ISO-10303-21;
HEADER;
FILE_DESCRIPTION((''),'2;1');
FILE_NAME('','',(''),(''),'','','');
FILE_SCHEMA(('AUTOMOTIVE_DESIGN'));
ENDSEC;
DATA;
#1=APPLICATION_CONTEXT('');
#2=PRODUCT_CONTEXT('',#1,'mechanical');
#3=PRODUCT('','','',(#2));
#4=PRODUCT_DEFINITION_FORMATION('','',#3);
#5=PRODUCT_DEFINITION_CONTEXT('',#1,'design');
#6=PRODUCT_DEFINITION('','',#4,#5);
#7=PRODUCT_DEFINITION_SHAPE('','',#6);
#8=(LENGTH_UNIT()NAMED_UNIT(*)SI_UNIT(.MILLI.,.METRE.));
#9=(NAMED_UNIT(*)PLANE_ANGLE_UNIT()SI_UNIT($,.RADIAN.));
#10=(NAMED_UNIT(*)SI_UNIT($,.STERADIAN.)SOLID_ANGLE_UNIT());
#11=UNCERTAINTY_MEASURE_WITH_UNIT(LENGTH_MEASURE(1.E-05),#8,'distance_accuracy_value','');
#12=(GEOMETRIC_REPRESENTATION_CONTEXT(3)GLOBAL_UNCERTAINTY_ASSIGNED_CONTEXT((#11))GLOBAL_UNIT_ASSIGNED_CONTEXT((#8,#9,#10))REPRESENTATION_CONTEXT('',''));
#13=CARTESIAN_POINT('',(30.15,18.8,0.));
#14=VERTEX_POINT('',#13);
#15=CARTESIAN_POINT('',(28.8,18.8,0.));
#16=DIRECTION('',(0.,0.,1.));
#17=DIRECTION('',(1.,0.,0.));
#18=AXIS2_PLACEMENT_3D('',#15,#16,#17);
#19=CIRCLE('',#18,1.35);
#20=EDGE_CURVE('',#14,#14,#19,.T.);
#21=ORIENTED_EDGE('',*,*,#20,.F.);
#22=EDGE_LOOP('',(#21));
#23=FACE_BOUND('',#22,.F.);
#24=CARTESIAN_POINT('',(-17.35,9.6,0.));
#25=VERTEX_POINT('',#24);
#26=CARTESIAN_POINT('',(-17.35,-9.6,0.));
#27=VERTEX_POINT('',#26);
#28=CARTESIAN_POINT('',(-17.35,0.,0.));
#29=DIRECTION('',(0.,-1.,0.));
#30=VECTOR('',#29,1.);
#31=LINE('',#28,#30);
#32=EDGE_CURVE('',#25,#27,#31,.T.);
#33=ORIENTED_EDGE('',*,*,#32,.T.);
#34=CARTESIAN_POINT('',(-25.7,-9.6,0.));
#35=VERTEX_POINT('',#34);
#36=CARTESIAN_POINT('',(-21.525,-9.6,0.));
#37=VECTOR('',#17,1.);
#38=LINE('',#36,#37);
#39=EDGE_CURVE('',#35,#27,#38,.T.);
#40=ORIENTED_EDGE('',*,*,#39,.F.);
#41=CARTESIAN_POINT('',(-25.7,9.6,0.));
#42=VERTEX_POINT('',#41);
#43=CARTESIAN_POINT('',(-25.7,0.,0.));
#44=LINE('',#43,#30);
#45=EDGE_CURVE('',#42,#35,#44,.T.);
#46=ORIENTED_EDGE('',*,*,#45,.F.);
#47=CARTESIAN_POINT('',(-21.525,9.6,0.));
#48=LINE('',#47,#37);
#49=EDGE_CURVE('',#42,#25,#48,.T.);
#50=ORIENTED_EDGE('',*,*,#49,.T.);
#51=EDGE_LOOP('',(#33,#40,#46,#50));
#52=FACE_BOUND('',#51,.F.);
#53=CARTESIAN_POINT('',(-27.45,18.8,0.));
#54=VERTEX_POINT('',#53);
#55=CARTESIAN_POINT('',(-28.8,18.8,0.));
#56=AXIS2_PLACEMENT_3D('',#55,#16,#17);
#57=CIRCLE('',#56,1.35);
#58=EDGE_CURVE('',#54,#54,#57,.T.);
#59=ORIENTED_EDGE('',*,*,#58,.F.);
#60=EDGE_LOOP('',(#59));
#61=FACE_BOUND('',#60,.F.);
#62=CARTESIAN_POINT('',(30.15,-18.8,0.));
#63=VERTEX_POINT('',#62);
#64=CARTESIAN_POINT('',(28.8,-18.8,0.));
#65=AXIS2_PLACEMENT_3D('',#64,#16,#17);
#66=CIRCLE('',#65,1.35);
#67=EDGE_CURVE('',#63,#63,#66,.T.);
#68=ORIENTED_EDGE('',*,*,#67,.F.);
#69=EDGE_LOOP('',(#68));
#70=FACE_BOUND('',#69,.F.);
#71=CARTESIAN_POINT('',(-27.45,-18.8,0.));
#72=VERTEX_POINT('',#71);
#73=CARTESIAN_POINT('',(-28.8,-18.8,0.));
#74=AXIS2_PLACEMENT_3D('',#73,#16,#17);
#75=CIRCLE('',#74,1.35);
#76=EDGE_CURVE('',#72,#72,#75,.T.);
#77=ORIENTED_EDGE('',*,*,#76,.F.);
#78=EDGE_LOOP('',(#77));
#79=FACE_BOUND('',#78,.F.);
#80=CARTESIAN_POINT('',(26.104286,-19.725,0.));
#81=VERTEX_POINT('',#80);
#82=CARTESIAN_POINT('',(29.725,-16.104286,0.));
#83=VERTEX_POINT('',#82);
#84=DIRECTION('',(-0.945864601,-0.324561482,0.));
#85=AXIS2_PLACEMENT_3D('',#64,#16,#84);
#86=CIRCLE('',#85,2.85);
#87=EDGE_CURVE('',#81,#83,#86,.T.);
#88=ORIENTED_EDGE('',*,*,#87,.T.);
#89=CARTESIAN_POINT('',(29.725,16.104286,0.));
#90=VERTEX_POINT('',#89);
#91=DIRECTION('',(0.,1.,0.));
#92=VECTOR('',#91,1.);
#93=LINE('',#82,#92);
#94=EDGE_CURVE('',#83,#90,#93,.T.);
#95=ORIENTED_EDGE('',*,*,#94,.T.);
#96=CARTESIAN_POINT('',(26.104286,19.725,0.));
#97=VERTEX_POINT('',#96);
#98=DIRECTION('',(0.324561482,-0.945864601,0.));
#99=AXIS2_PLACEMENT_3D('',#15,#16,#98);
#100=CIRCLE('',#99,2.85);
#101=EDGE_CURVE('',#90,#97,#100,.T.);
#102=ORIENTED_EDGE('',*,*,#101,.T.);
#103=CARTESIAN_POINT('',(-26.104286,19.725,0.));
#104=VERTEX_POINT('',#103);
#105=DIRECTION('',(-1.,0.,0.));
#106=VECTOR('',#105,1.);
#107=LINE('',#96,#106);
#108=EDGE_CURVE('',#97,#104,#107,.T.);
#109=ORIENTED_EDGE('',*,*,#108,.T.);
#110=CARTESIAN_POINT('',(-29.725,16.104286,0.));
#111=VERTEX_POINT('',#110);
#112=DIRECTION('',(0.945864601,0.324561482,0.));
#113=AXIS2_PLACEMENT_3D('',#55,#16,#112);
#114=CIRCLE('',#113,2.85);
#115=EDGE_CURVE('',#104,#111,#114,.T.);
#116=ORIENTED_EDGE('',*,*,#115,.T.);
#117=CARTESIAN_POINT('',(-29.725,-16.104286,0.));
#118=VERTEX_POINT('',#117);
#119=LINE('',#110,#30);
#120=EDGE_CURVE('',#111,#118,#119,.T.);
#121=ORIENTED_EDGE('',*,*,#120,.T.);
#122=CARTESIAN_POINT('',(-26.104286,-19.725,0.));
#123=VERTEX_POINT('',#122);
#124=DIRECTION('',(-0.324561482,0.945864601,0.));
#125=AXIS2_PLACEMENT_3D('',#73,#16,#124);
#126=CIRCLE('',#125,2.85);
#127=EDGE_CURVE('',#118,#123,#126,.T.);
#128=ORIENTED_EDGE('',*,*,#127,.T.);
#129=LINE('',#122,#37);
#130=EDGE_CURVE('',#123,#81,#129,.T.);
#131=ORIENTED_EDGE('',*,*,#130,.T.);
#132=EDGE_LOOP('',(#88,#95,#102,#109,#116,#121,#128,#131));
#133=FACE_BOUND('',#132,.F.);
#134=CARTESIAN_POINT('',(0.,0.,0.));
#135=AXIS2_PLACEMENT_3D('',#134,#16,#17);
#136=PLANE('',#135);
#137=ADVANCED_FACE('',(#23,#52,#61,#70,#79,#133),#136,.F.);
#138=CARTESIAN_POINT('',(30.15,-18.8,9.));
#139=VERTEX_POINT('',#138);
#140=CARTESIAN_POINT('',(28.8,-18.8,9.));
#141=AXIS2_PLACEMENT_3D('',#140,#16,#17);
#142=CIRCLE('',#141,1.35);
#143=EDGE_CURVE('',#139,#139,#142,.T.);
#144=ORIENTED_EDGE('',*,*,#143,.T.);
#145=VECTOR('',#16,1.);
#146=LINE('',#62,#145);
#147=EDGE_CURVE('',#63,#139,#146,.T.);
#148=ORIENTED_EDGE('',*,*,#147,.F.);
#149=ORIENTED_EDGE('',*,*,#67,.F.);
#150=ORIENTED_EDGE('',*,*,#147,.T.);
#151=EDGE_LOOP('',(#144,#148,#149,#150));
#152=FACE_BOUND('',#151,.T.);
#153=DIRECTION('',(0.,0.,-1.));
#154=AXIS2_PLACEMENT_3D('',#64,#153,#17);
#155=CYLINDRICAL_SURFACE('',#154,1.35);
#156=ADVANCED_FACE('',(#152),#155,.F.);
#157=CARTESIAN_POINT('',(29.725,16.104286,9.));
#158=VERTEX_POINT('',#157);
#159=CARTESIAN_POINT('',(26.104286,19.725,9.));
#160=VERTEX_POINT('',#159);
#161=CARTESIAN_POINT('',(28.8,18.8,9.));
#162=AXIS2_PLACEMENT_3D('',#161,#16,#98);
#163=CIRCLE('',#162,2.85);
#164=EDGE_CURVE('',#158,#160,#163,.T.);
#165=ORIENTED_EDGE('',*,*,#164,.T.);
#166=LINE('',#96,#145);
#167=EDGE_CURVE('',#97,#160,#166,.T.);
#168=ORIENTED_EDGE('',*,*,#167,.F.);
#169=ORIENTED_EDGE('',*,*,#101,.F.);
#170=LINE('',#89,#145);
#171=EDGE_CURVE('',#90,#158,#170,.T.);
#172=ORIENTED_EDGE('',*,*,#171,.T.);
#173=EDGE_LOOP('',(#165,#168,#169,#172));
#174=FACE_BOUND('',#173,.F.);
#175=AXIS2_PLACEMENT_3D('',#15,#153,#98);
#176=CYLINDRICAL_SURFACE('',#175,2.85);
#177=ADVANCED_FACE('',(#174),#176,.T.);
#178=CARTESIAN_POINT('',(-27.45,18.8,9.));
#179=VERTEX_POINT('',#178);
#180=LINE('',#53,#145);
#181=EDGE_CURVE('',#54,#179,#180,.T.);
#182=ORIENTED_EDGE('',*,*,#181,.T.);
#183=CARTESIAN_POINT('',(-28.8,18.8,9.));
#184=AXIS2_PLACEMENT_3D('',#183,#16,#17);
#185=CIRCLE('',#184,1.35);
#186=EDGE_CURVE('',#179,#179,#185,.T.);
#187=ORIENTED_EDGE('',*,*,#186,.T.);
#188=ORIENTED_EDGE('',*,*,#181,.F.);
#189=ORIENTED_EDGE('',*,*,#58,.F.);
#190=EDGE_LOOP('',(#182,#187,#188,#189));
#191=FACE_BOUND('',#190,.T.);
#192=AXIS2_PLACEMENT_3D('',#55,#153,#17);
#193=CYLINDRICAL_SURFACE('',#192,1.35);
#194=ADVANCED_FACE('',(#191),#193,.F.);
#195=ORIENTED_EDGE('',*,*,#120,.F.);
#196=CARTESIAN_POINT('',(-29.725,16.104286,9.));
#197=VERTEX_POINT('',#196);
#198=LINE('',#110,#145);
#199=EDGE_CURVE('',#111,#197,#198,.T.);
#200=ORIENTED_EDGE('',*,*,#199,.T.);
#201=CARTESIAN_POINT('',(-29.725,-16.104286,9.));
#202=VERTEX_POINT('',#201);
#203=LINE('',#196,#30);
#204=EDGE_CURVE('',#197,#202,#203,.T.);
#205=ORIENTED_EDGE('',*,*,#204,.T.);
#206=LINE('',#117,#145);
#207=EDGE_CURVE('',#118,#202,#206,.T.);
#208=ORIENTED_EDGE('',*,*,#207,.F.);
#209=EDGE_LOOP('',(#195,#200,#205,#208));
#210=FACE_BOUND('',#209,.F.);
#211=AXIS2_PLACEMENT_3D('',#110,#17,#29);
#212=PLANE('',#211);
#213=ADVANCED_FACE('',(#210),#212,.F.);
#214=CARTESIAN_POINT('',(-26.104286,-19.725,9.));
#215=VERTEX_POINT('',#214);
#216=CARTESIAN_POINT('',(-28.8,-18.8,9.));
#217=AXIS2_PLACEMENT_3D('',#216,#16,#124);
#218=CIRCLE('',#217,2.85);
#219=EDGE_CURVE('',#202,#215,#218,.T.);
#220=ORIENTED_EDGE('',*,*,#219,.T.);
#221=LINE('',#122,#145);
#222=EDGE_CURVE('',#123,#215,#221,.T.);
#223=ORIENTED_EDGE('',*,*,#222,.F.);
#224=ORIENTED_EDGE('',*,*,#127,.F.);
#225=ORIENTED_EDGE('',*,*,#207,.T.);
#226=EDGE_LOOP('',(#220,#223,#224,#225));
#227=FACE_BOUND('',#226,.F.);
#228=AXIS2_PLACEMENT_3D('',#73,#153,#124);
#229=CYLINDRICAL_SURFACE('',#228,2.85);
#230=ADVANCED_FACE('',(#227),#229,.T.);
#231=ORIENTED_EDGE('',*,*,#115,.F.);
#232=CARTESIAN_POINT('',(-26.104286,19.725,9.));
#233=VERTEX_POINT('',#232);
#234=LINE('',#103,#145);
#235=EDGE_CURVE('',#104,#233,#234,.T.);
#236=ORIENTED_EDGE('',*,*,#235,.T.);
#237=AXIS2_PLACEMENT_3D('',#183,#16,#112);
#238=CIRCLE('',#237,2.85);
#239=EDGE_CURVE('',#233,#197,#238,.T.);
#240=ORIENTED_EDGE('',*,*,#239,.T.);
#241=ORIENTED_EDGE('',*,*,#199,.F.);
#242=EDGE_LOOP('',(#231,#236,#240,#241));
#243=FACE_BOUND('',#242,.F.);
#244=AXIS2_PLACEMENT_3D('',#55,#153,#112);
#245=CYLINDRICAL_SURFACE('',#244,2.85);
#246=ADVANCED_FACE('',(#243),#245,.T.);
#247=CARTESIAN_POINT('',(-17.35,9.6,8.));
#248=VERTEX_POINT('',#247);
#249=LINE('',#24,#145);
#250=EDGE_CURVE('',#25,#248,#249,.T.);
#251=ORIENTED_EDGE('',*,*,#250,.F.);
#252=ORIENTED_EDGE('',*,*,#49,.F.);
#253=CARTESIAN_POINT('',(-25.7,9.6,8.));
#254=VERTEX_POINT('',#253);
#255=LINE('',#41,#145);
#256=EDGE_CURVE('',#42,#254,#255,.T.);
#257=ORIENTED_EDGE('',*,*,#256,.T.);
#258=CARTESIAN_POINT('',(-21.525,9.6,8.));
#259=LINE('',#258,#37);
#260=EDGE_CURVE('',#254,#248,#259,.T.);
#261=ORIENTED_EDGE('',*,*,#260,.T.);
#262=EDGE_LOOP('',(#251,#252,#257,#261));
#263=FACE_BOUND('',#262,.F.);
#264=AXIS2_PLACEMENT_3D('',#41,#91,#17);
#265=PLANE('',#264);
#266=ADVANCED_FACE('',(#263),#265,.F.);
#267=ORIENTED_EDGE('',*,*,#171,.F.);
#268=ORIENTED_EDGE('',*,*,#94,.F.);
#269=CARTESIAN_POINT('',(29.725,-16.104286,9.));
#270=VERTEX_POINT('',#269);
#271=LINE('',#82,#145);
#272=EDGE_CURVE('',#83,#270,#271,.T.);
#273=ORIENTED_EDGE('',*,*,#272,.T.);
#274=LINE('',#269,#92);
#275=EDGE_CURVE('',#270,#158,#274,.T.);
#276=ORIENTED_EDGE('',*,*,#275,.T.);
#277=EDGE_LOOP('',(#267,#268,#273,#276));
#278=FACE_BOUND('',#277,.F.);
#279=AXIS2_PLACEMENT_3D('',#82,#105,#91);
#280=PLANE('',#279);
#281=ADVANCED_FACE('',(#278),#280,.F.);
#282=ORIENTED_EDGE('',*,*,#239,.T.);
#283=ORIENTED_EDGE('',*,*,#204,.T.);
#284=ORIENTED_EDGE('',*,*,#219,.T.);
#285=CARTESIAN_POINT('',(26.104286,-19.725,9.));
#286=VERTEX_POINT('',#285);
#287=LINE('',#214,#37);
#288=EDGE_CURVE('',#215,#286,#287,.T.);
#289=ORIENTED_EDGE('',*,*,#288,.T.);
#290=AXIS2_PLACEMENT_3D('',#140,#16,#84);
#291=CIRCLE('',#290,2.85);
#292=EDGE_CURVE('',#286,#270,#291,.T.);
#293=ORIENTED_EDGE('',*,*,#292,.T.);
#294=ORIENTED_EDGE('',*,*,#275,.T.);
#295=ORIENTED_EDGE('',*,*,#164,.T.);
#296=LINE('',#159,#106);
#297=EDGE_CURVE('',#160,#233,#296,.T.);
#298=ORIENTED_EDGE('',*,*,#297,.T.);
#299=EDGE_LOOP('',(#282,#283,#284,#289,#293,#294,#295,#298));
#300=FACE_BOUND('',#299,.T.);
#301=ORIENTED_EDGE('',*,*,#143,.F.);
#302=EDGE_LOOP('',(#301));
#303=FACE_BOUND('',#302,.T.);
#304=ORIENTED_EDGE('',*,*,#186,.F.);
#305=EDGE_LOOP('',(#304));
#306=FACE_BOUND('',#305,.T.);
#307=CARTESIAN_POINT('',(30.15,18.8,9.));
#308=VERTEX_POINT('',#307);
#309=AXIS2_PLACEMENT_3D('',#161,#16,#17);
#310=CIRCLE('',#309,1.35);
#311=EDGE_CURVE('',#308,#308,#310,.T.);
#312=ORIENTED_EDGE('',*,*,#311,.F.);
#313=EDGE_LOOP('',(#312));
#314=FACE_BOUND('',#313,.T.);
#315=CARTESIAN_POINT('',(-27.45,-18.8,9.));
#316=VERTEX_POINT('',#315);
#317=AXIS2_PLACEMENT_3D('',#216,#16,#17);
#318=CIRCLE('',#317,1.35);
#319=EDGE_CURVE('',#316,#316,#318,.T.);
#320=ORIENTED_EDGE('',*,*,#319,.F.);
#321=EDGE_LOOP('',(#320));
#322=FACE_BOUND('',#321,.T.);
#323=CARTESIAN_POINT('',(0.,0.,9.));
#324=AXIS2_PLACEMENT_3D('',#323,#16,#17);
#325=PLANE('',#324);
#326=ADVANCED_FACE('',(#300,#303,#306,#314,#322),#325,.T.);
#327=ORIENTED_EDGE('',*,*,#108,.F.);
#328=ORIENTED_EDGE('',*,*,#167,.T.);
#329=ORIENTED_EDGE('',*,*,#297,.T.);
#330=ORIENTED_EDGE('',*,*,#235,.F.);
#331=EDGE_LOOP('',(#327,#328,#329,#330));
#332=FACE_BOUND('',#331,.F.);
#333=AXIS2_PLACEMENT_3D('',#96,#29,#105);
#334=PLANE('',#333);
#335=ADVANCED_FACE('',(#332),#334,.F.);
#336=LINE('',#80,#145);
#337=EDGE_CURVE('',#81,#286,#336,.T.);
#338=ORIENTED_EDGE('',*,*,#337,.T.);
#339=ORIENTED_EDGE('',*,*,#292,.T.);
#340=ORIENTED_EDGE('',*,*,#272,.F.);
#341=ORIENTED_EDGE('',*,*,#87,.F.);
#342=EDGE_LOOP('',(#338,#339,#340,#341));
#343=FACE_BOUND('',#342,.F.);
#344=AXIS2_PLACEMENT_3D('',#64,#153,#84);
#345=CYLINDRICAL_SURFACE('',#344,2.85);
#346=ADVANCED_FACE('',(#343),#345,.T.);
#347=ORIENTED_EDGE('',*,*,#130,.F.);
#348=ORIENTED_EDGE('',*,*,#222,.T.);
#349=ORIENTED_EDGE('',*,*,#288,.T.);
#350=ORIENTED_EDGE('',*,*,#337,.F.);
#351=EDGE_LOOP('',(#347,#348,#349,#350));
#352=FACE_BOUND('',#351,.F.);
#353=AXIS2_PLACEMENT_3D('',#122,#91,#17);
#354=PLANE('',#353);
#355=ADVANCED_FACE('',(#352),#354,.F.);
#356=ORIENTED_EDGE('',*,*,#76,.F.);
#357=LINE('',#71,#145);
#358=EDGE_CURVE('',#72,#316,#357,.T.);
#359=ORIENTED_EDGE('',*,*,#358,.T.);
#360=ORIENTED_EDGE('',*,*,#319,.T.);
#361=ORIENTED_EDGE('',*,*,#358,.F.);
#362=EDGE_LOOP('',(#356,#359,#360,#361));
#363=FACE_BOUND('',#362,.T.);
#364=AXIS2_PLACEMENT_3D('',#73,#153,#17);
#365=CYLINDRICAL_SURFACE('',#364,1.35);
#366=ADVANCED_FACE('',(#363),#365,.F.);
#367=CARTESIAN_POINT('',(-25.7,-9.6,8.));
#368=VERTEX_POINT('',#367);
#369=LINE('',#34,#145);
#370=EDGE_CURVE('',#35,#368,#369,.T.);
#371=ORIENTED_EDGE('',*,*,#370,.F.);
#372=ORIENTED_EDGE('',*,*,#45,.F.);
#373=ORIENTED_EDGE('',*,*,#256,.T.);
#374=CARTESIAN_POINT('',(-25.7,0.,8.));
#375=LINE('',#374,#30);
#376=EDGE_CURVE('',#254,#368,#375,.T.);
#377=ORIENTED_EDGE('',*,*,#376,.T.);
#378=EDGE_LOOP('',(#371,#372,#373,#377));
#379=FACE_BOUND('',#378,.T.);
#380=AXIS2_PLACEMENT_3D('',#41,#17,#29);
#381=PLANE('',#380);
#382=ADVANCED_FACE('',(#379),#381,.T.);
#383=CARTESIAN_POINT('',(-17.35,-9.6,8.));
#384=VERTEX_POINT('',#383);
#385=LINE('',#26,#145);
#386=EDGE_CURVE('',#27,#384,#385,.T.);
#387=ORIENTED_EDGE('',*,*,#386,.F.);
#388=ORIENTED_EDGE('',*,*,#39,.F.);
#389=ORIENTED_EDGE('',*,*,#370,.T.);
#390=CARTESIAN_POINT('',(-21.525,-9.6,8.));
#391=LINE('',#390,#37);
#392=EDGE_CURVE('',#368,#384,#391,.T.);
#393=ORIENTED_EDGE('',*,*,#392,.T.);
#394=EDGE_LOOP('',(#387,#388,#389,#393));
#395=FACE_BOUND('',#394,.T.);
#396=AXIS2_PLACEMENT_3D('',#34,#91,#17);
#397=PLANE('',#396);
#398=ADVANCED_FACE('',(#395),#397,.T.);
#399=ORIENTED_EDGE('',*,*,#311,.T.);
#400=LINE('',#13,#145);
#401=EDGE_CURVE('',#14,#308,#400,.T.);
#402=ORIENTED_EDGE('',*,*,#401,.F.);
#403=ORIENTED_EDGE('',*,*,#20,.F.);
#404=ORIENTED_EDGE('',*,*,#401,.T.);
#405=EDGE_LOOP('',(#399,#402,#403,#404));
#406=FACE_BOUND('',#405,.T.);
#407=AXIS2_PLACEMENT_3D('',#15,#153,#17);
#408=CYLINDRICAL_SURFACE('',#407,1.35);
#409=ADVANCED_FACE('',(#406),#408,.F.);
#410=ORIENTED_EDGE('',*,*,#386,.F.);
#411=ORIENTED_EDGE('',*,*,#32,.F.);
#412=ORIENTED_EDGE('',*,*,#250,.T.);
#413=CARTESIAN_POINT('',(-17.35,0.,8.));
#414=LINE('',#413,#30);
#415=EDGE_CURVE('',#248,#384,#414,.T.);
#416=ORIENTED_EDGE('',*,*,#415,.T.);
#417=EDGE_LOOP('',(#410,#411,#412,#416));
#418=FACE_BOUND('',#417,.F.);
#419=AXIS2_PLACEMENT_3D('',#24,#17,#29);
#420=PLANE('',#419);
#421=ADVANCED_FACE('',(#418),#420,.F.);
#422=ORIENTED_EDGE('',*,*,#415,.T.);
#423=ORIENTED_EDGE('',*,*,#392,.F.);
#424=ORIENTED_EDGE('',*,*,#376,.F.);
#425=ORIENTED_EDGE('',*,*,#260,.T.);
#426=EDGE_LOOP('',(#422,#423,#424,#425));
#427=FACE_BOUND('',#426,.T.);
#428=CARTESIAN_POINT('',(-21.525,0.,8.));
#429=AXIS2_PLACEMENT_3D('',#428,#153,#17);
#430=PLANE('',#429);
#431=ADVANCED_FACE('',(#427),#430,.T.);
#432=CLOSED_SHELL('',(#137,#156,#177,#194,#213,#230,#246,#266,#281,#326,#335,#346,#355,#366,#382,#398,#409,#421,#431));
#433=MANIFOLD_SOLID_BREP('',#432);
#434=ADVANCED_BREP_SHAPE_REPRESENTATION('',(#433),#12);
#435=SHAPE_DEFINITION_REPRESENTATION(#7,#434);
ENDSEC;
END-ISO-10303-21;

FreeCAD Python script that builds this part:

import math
import FreeCAD as App
import Part
import Sketcher

V = App.Vector
Q = App.Units.Quantity

doc = App.newDocument("Part")
body = doc.addObject("PartDesign::Body", "Body")

sketch1 = body.newObject("Sketcher::SketchObject", "Sketch")
sketch1.AttachmentSupport = (doc.getObject("XY_Plane"), [""])
sketch1.MapMode = "FlatFace"
sketch1.addGeometry(Part.LineSegment(V(26.1, 19.7, 0), V(-26.1, 19.7, 0)), False)
sketch1.addGeometry(Part.ArcOfCircle(Part.Circle(V(-28.8, 18.8, 0), V(0, 0, 1), 2.8), math.radians(19), math.radians(251)), False)
sketch1.addGeometry(Part.LineSegment(V(-29.7, 16.1, 0), V(-29.7, -16.1, 0)), False)
sketch1.addGeometry(Part.ArcOfCircle(Part.Circle(V(-28.8, -18.8, 0), V(0, 0, 1), 2.8), math.radians(109), math.radians(341)), False)
sketch1.addGeometry(Part.LineSegment(V(-26.1, -19.7, 0), V(26.1, -19.7, 0)), False)
sketch1.addGeometry(Part.ArcOfCircle(Part.Circle(V(28.8, -18.8, 0), V(0, 0, 1), 2.8), math.radians(-161), math.radians(71)), False)
sketch1.addGeometry(Part.LineSegment(V(29.7, -16.1, 0), V(29.7, 16.1, 0)), False)
sketch1.addGeometry(Part.ArcOfCircle(Part.Circle(V(28.8, 18.8, 0), V(0, 0, 1), 2.8), math.radians(-71), math.radians(161)), False)
sketch1.addGeometry(Part.Circle(V(-28.8, -18.8, 0), V(0, 0, 1), 1.4), False)
sketch1.addGeometry(Part.Circle(V(28.8, -18.8, 0), V(0, 0, 1), 1.4), False)
sketch1.addGeometry(Part.Circle(V(-28.8, 18.8, 0), V(0, 0, 1), 1.4), False)
sketch1.addGeometry(Part.Circle(V(28.8, 18.8, 0), V(0, 0, 1), 1.4), False)
sketch1.addConstraint(Sketcher.Constraint("Coincident", 0, 2, 1, 1))
sketch1.addConstraint(Sketcher.Constraint("Coincident", 1, 2, 2, 1))
sketch1.addConstraint(Sketcher.Constraint("Coincident", 2, 2, 3, 1))
sketch1.addConstraint(Sketcher.Constraint("Coincident", 3, 2, 4, 1))
sketch1.addConstraint(Sketcher.Constraint("Coincident", 4, 2, 5, 1))
sketch1.addConstraint(Sketcher.Constraint("Coincident", 5, 2, 6, 1))
sketch1.addConstraint(Sketcher.Constraint("Coincident", 6, 2, 7, 1))
sketch1.addConstraint(Sketcher.Constraint("Coincident", 7, 2, 0, 1))
sketch1.addConstraint(Sketcher.Constraint("Horizontal", 0))
sketch1.addConstraint(Sketcher.Constraint("Vertical", 2))
sketch1.addConstraint(Sketcher.Constraint("Horizontal", 4))
sketch1.addConstraint(Sketcher.Constraint("Vertical", 6))
sketch1.addConstraint(Sketcher.Constraint("Coincident", 8, 3, 3, 3))
sketch1.addConstraint(Sketcher.Constraint("Coincident", 9, 3, 5, 3))
sketch1.addConstraint(Sketcher.Constraint("Coincident", 10, 3, 1, 3))
sketch1.addConstraint(Sketcher.Constraint("Coincident", 11, 3, 7, 3))
sketch1.addConstraint(Sketcher.Constraint("Equal", 1, 3))
sketch1.addConstraint(Sketcher.Constraint("Equal", 3, 5))
sketch1.addConstraint(Sketcher.Constraint("Equal", 5, 7))
sketch1.addConstraint(Sketcher.Constraint("Equal", 8, 9))
sketch1.addConstraint(Sketcher.Constraint("Equal", 9, 10))
sketch1.addConstraint(Sketcher.Constraint("Equal", 10, 11))
sketch1.addConstraint(Sketcher.Constraint("Symmetric", 1, 3, 5, 3, -1, 1))
sketch1.addConstraint(Sketcher.Constraint("Symmetric", 3, 3, 7, 3, -1, 1))
sketch1.addConstraint(Sketcher.Constraint("Symmetric", 3, 3, 5, 3, -2))
sketch1.addConstraint(Sketcher.Constraint("Horizontal", 2, 2, 5, 2))
sketch1.addConstraint(Sketcher.Constraint("Vertical", 0, 2, 3, 2))
sketch1.addConstraint(Sketcher.Constraint("Diameter", 8, Q("2.7 mm")))
sketch1.addConstraint(Sketcher.Constraint("Radius", 1, Q("2.85 mm")))
sketch1.addConstraint(Sketcher.Constraint("DistanceX", 1, 3, -1, 1, Q("28.8 mm")))
sketch1.addConstraint(Sketcher.Constraint("DistanceY", -1, 1, 1, 3, Q("18.8 mm")))
sketch1.addConstraint(Sketcher.Constraint("DistanceY", -1, 1, 0, 2, Q("19.725 mm")))
sketch1.addConstraint(Sketcher.Constraint("DistanceX", 1, 2, -1, 1, Q("29.725 mm")))
pad1 = body.newObject("PartDesign::Pad", "Pad")
pad1.Profile = sketch1
pad1.Length = 9

sketch2 = body.newObject("Sketcher::SketchObject", "Sketch001")
sketch2.AttachmentSupport = (doc.getObject("XY_Plane"), [""])
sketch2.MapMode = "FlatFace"
sketch2.addGeometry(Part.LineSegment(V(-26, -10, 0), V(-26, 10, 0)), False)
sketch2.addGeometry(Part.LineSegment(V(-26, 10, 0), V(-17, 10, 0)), False)
sketch2.addGeometry(Part.LineSegment(V(-17, 10, 0), V(-17, -10, 0)), False)
sketch2.addGeometry(Part.LineSegment(V(-17, -10, 0), V(-26, -10, 0)), False)
sketch2.addConstraint(Sketcher.Constraint("Coincident", 0, 2, 1, 1))
sketch2.addConstraint(Sketcher.Constraint("Coincident", 1, 2, 2, 1))
sketch2.addConstraint(Sketcher.Constraint("Coincident", 2, 2, 3, 1))
sketch2.addConstraint(Sketcher.Constraint("Coincident", 3, 2, 0, 1))
sketch2.addConstraint(Sketcher.Constraint("Vertical", 0))
sketch2.addConstraint(Sketcher.Constraint("Horizontal", 1))
sketch2.addConstraint(Sketcher.Constraint("Vertical", 2))
sketch2.addConstraint(Sketcher.Constraint("Horizontal", 3))
sketch2.addConstraint(Sketcher.Constraint("DistanceY", 0, 1, 0, 2, Q("19.2 mm")))
sketch2.addConstraint(Sketcher.Constraint("DistanceX", 1, 1, 1, 2, Q("8.35 mm")))
sketch2.addConstraint(Sketcher.Constraint("DistanceX", 0, 2, -1, 1, Q("25.7 mm")))
sketch2.addConstraint(Sketcher.Constraint("DistanceY", -1, 1, 0, 2, Q("9.6 mm")))
pocket1 = body.newObject("PartDesign::Pocket", "Pocket")
pocket1.Profile = sketch2
pocket1.Length = 8
pocket1.Reversed = True

doc.recompute()
